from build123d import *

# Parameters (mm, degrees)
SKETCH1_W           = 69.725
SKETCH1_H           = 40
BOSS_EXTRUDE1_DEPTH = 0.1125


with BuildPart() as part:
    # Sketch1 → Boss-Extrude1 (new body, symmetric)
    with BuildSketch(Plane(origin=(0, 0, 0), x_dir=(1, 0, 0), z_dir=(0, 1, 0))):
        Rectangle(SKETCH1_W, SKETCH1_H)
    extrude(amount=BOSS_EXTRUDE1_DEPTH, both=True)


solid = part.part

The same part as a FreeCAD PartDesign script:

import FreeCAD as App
import Part
import Sketcher

V = App.Vector
Q = App.Units.Quantity

doc = App.newDocument("Part")
body = doc.addObject("PartDesign::Body", "Body")

sketch1 = doc.addObject("Sketcher::SketchObject", "Sketch")
body.addObject(sketch1)
sketch1.AttachmentSupport = (doc.XZ_Plane, [""])
sketch1.MapMode = "FlatFace"
sketch1.addGeometry([
    Part.LineSegment(V(-35, -20, 0), V(-35, 20, 0)),
    Part.LineSegment(V(-35, 20, 0), V(35, 20, 0)),
    Part.LineSegment(V(35, 20, 0), V(35, -20, 0)),
    Part.LineSegment(V(35, -20, 0), V(-35, -20, 0)),
], False)
sketch1.addConstraint([
    Sketcher.Constraint("Coincident", 0, 2, 1, 1),
    Sketcher.Constraint("Coincident", 1, 2, 2, 1),
    Sketcher.Constraint("Coincident", 2, 2, 3, 1),
    Sketcher.Constraint("Coincident", 3, 2, 0, 1),
    Sketcher.Constraint("Vertical", 0),
    Sketcher.Constraint("Horizontal", 1),
    Sketcher.Constraint("Vertical", 2),
    Sketcher.Constraint("Horizontal", 3),
    Sketcher.Constraint("Symmetric", 0, 2, 2, 2, -1, 1),
    Sketcher.Constraint("DistanceY", 0, 1, 0, 2, Q("40 mm")),
    Sketcher.Constraint("DistanceX", 1, 1, 1, 2, Q("69.725 mm")),
])
pad1 = doc.addObject("PartDesign::Pad", "Pad")
body.addObject(pad1)
pad1.Profile = sketch1
pad1.Length = 0.225
pad1.Midplane = True

doc.recompute()
